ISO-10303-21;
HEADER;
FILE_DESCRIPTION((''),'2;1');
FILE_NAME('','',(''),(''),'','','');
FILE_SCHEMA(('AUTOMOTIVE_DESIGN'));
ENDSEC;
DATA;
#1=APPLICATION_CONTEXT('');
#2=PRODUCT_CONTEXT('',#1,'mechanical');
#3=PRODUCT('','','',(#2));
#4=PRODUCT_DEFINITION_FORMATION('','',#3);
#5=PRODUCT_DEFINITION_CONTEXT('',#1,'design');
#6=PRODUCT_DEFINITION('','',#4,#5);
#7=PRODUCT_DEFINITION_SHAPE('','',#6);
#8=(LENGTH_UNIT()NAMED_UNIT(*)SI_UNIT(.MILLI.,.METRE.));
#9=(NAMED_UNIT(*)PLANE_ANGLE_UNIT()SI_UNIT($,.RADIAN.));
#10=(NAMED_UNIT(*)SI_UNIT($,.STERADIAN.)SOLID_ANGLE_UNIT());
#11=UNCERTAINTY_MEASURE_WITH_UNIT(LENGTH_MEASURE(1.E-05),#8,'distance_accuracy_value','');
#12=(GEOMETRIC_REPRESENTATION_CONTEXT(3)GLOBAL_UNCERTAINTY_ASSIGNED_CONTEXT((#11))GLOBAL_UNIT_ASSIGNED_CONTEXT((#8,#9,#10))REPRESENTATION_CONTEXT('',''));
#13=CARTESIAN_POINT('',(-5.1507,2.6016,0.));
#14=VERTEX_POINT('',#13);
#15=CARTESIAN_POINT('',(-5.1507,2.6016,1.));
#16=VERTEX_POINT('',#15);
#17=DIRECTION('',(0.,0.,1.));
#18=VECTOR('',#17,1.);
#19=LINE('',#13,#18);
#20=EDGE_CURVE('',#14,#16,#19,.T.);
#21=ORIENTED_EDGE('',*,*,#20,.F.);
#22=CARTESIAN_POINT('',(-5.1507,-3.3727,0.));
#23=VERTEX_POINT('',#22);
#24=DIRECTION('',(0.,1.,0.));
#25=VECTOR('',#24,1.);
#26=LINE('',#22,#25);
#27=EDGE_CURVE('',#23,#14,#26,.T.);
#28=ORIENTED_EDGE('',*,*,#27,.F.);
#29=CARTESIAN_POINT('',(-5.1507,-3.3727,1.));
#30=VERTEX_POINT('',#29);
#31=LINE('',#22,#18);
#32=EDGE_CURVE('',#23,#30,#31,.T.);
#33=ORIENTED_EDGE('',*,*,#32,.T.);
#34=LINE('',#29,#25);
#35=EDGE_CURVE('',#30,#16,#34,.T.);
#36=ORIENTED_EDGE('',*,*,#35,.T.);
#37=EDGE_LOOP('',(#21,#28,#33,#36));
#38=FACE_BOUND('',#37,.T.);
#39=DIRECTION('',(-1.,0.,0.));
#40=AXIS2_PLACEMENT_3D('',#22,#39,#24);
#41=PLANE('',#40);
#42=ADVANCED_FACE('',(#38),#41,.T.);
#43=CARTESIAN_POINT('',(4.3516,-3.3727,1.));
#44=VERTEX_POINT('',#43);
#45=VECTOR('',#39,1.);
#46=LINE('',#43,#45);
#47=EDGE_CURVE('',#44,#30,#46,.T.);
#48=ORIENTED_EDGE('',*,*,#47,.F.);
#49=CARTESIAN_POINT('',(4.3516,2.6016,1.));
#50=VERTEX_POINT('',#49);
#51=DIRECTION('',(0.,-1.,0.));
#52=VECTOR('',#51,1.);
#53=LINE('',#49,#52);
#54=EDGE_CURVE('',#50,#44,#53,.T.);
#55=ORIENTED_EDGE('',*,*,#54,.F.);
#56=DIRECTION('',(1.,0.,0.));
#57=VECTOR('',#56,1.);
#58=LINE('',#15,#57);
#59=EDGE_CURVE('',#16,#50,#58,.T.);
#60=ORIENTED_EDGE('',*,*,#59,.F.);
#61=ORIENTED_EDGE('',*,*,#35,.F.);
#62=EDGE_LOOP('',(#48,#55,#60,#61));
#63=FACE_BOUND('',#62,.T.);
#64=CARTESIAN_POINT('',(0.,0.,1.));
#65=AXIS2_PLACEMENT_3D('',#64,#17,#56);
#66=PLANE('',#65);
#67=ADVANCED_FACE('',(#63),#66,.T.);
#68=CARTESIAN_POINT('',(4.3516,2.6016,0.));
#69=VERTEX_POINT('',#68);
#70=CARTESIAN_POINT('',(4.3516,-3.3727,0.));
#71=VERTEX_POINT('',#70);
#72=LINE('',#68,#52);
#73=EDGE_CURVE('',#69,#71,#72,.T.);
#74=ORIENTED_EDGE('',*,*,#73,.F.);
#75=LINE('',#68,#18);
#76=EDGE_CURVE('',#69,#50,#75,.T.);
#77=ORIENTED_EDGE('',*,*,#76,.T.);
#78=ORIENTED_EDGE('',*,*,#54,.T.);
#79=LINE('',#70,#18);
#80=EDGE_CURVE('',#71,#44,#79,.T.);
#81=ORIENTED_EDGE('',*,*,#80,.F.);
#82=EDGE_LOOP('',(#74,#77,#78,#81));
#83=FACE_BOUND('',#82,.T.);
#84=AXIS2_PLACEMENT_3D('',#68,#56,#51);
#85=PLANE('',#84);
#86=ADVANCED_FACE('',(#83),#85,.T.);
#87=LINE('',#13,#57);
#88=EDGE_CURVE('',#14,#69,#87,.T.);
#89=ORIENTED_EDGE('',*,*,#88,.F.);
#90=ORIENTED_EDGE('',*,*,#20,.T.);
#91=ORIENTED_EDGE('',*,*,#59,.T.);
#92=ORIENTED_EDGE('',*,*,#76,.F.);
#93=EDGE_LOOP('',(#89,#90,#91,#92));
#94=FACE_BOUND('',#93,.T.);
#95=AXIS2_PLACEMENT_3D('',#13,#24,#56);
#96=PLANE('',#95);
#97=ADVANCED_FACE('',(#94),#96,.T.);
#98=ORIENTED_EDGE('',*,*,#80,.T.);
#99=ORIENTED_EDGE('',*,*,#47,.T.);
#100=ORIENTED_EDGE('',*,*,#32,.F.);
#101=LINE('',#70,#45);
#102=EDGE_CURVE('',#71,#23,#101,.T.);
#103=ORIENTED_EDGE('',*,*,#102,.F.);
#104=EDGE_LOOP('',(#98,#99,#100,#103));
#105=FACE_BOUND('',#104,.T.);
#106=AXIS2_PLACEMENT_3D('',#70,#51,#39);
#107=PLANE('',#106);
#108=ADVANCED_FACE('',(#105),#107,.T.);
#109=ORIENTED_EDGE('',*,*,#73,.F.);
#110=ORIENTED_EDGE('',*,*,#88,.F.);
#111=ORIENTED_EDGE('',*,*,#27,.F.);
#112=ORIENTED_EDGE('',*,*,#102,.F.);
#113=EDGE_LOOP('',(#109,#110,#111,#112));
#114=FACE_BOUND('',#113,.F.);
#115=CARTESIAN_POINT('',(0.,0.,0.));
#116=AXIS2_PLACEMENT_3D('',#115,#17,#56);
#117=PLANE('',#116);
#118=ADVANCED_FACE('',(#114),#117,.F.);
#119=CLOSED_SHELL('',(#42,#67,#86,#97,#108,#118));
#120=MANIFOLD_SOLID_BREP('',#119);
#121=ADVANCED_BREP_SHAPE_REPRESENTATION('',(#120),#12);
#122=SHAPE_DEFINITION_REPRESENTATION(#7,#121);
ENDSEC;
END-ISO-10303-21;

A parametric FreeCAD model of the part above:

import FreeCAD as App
import Part
import Sketcher

V = App.Vector
Q = App.Units.Quantity

doc = App.newDocument("Part")
params = doc.addObject("Spreadsheet::Sheet", "Params")
for row, (alias, value) in enumerate([
    ("pad1_length", "1 mm"),
], start=1):
    params.set(f"A{row}", alias)
    params.set(f"B{row}", "=" + value)
    params.setAlias(f"B{row}", alias)

body = doc.addObject("PartDesign::Body", "Body")

# Sketch on XY plane
sketch1 = doc.addObject("Sketcher::SketchObject", "Sketch")
body.addObject(sketch1)
sketch1.AttachmentSupport = (doc.XY_Plane, [""])
sketch1.MapMode = "FlatFace"
sketch1.addGeometry([
    Part.LineSegment(V(4, 3, 0), V(-5, 3, 0)),
    Part.LineSegment(V(-5, 3, 0), V(-5, -3, 0)),
    Part.LineSegment(V(-5, -3, 0), V(4, -3, 0)),
    Part.LineSegment(V(4, -3, 0), V(4, 3, 0)),
], False)
sketch1.addConstraint([
    Sketcher.Constraint("Coincident", 0, 2, 1, 1),
    Sketcher.Constraint("Coincident", 1, 2, 2, 1),
    Sketcher.Constraint("Coincident", 2, 2, 3, 1),
    Sketcher.Constraint("Coincident", 3, 2, 0, 1),
    Sketcher.Constraint("Horizontal", 0),
    Sketcher.Constraint("Vertical", 1),
    Sketcher.Constraint("Horizontal", 2),
    Sketcher.Constraint("Vertical", 3),
    Sketcher.Constraint("DistanceX", 0, 2, 0, 1, Q("9.5023 mm")),
    Sketcher.Constraint("DistanceY", 1, 2, 1, 1, Q("5.9743 mm")),
    Sketcher.Constraint("DistanceX", 0, 2, -1, 1, Q("5.1507 mm")),
    Sketcher.Constraint("DistanceY", -1, 1, 0, 2, Q("2.6016 mm")),
])
pad1 = doc.addObject("PartDesign::Pad", "Pad")
body.addObject(pad1)
pad1.Profile = sketch1
pad1.setExpression("Length", "Params.pad1_length")

doc.recompute()
